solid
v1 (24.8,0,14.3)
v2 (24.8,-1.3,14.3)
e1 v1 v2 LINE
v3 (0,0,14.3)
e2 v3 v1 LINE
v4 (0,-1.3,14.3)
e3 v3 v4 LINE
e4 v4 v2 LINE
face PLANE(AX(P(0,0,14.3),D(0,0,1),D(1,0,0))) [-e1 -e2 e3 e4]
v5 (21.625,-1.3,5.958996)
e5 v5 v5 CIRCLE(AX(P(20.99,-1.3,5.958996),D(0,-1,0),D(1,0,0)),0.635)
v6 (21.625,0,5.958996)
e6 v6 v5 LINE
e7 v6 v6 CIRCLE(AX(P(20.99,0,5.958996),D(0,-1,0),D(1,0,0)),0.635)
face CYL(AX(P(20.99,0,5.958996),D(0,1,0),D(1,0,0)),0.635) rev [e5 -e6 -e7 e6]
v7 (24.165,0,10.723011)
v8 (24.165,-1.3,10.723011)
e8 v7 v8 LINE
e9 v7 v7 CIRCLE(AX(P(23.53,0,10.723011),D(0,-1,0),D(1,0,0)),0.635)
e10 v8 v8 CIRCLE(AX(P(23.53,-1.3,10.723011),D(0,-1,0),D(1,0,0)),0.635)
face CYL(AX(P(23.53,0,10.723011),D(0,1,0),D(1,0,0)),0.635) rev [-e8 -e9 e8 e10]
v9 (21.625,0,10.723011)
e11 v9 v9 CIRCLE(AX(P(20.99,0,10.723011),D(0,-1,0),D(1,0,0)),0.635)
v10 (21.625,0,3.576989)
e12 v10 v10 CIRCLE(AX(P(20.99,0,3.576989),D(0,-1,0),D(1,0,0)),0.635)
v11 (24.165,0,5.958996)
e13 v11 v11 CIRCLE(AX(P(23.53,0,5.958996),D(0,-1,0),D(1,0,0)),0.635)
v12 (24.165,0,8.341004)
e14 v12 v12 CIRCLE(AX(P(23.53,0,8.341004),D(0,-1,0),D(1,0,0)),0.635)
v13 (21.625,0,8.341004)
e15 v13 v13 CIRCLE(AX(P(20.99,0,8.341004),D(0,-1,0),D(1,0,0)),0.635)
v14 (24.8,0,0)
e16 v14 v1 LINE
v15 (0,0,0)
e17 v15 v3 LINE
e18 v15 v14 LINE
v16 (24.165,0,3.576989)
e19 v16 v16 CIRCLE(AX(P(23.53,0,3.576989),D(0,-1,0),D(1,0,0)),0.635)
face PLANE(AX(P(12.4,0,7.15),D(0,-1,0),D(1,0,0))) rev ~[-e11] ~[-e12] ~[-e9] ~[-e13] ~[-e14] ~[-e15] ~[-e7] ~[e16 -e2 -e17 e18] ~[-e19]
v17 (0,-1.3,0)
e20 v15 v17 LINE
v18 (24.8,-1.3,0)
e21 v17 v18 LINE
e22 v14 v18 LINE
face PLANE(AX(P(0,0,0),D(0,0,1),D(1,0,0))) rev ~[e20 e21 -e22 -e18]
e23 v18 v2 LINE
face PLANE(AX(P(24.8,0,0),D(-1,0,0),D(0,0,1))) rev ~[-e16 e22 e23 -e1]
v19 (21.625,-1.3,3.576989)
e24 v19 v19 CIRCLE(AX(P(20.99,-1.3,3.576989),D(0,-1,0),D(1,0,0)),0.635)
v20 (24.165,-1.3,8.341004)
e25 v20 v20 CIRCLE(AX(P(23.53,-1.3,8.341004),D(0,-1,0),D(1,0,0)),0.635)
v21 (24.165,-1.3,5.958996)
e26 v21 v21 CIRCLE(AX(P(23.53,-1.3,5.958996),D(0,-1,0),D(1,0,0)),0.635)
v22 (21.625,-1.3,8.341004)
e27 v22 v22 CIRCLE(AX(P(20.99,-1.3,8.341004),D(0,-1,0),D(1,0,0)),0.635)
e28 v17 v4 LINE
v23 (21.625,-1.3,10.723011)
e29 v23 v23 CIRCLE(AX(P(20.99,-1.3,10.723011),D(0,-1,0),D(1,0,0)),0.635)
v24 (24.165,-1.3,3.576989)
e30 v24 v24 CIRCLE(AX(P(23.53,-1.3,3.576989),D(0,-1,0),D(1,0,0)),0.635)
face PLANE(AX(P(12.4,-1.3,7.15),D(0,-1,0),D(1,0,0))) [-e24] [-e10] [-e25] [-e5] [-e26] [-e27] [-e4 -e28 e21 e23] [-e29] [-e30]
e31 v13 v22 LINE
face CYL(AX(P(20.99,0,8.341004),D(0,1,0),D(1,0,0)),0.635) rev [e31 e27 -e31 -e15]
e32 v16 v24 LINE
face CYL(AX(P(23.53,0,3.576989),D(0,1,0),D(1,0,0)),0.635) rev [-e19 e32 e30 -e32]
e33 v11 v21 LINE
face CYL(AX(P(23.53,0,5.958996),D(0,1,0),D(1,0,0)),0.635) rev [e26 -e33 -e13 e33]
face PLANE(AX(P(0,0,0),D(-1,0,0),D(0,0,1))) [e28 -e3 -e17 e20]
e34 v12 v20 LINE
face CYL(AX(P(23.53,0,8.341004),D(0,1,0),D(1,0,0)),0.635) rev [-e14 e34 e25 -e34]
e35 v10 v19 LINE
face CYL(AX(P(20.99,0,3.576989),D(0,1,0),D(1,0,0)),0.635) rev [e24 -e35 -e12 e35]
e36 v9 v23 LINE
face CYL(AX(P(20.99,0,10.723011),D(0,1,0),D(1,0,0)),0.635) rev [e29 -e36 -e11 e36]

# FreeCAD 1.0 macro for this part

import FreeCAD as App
import Part
import Sketcher
from FreeCAD import Vector

doc = App.newDocument("Part")
body = doc.addObject("PartDesign::Body", "Body")

sketch1 = doc.addObject("Sketcher::SketchObject", "Sketch")
body.addObject(sketch1)
sketch1.AttachmentSupport = (doc.XZ_Plane, [""])
sketch1.MapMode = "FlatFace"
sketch1.addGeometry([
    Part.LineSegment(Vector(0, 14.3, 0), Vector(0, 0, 0)),
    Part.LineSegment(Vector(0, 0, 0), Vector(24.8, 0, 0)),
    Part.LineSegment(Vector(24.8, 0, 0), Vector(24.8, 14.3, 0)),
    Part.LineSegment(Vector(24.8, 14.3, 0), Vector(0, 14.3, 0)),
    Part.Circle(Vector(20.99, 3.576989, 0), Vector(0, 0, 1), 0.635),
    Part.Circle(Vector(20.99, 5.958996, 0), Vector(0, 0, 1), 0.635),
    Part.Circle(Vector(23.53, 3.576989, 0), Vector(0, 0, 1), 0.635),
    Part.Circle(Vector(23.53, 5.958996, 0), Vector(0, 0, 1), 0.635),
    Part.Circle(Vector(20.99, 8.341004, 0), Vector(0, 0, 1), 0.635),
    Part.Circle(Vector(20.99, 10.723011, 0), Vector(0, 0, 1), 0.635),
    Part.Circle(Vector(23.53, 8.341004, 0), Vector(0, 0, 1), 0.635),
    Part.Circle(Vector(23.53, 10.723011, 0), Vector(0, 0, 1), 0.635),
], False)
sketch1.addConstraint([
    Sketcher.Constraint("Coincident", 0, 2, 1, 1),
    Sketcher.Constraint("Coincident", 1, 2, 2, 1),
    Sketcher.Constraint("Coincident", 2, 2, 3, 1),
    Sketcher.Constraint("Coincident", 3, 2, 0, 1),
    Sketcher.Constraint("Vertical", 0),
    Sketcher.Constraint("Horizontal", 1),
    Sketcher.Constraint("Vertical", 2),
    Sketcher.Constraint("Horizontal", 3),
    Sketcher.Constraint("Coincident", 0, 2, -1, 1),
    Sketcher.Constraint("Equal", 4, 5),
    Sketcher.Constraint("Equal", 5, 6),
    Sketcher.Constraint("Equal", 6, 7),
    Sketcher.Constraint("Equal", 7, 8),
    Sketcher.Constraint("Equal", 8, 9),
    Sketcher.Constraint("Equal", 9, 10),
    Sketcher.Constraint("Equal", 10, 11),
    Sketcher.Constraint("Horizontal", 4, 3, 6, 3),
    Sketcher.Constraint("Horizontal", 5, 3, 7, 3),
    Sketcher.Constraint("Horizontal", 8, 3, 10, 3),
    Sketcher.Constraint("Horizontal", 9, 3, 11, 3),
    Sketcher.Constraint("Vertical", 4, 3, 5, 3),
    Sketcher.Constraint("Vertical", 6, 3, 7, 3),
    Sketcher.Constraint("Vertical", 5, 3, 8, 3),
    Sketcher.Constraint("Vertical", 8, 3, 9, 3),
    Sketcher.Constraint("Vertical", 7, 3, 10, 3),
    Sketcher.Constraint("Vertical", 10, 3, 11, 3),
    Sketcher.Constraint("Diameter", 4, 1.27),
    Sketcher.Constraint("DistanceX", 1, 1, 1, 2, 24.8),
    Sketcher.Constraint("DistanceY", 0, 2, 0, 1, 14.3),
    Sketcher.Constraint("DistanceX", -1, 1, 4, 3, 20.99),
    Sketcher.Constraint("DistanceX", -1, 1, 6, 3, 23.53),
    Sketcher.Constraint("DistanceY", -1, 1, 4, 3, 3.576989),
    Sketcher.Constraint("DistanceY", -1, 1, 9, 3, 10.723011),
    Sketcher.Constraint("DistanceY", -1, 1, 5, 3, 5.958996),
    Sketcher.Constraint("DistanceY", -1, 1, 8, 3, 8.341004),
])
pad1 = doc.addObject("PartDesign::Pad", "Pad")
body.addObject(pad1)
pad1.Profile = sketch1
pad1.Length = 1.3

doc.recompute()
